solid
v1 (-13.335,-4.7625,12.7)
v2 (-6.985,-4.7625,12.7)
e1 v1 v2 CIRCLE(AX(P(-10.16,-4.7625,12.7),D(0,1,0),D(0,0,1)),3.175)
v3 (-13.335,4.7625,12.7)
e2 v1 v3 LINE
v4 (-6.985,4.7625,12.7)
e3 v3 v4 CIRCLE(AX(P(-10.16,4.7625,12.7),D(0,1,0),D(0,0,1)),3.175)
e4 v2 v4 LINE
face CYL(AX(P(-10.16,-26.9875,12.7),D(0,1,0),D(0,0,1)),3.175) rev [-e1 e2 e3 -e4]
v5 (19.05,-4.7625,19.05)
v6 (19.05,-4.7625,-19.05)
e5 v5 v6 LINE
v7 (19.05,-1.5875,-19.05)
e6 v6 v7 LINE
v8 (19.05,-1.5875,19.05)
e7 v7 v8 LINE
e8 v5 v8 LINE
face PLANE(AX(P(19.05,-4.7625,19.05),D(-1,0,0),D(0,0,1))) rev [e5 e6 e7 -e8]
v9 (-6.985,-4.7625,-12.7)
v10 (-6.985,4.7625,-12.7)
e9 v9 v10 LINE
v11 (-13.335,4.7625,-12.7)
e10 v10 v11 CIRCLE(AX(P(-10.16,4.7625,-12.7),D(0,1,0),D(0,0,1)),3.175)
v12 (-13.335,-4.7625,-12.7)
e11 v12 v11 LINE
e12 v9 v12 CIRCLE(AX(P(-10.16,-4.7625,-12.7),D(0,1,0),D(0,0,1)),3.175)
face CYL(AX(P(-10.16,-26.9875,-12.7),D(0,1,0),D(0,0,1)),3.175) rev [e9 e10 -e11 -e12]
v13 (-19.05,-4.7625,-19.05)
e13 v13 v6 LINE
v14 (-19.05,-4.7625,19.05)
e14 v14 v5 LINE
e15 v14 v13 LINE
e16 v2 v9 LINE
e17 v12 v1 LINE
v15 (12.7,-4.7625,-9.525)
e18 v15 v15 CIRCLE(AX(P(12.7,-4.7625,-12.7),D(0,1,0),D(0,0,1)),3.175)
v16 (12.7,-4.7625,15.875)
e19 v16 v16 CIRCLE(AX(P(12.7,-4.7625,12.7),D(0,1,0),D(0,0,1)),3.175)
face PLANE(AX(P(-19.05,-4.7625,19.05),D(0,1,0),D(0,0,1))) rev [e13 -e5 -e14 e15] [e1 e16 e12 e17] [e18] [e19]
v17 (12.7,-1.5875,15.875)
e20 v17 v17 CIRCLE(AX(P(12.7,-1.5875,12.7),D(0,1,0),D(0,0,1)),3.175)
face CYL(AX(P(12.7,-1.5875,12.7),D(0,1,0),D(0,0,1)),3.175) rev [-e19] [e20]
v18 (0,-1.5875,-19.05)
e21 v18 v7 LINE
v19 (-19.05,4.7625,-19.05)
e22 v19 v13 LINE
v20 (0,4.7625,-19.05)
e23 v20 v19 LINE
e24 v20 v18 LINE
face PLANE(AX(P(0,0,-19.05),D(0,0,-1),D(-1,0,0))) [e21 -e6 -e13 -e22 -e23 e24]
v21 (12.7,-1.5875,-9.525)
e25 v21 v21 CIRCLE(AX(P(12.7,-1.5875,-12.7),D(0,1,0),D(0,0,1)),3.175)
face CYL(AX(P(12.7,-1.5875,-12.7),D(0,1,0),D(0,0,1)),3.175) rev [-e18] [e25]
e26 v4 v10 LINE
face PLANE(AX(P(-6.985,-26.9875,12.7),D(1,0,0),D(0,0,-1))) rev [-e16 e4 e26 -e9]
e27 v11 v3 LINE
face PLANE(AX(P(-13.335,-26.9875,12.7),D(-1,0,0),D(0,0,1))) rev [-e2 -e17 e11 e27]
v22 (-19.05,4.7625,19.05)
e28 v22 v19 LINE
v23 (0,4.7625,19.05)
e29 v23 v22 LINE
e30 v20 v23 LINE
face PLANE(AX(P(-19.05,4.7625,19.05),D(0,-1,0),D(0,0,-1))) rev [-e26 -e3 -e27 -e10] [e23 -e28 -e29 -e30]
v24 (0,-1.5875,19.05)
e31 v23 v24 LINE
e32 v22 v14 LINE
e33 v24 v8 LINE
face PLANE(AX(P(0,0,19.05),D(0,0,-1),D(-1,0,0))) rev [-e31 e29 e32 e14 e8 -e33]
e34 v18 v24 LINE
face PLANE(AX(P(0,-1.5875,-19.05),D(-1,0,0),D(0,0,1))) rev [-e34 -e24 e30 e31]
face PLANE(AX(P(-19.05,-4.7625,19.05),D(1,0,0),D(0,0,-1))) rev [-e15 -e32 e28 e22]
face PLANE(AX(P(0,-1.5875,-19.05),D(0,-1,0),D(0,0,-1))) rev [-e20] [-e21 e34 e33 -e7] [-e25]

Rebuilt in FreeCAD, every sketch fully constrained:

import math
import FreeCAD as App
import Part
import Sketcher
from FreeCAD import Vector
Q = App.Units.Quantity

doc = App.newDocument("Part")
params = doc.addObject("Spreadsheet::Sheet", "Params")
for row, (alias, value) in enumerate([
    ("sketch1_width", "1.5 in"),
    ("sketch1_height", "0.375 in"),
    ("pad1_length", "1.5 in"),
    ("sketch2_width", "0.75 in"),
    ("sketch2_height", "0.25 in"),
    ("sketch3_diameter", "0.25 in"),
    ("hole_diameter", "0.25 in"),
    ("sketch4_height", "1 in"),
    ("sketch4_radius", "0.125 in"),
    ("pocket2_length", "1.25 in"),
], start=1):
    params.set(f"A{row}", alias)
    params.set(f"B{row}", "=" + value)
    params.setAlias(f"B{row}", alias)

body = doc.addObject("PartDesign::Body", "Body")

sketch1 = doc.addObject("Sketcher::SketchObject", "Sketch")
body.addObject(sketch1)
sketch1.AttachmentSupport = (doc.XY_Plane, [""])
sketch1.MapMode = "FlatFace"
sketch1.addGeometry([
    Part.LineSegment(Vector(-19, 5, 0), Vector(-19, -5, 0)),
    Part.LineSegment(Vector(-19, -5, 0), Vector(19, -5, 0)),
    Part.LineSegment(Vector(19, -5, 0), Vector(19, 5, 0)),
    Part.LineSegment(Vector(19, 5, 0), Vector(-19, 5, 0)),
], False)
sketch1.addConstraint([
    Sketcher.Constraint("Coincident", 0, 2, 1, 1),
    Sketcher.Constraint("Coincident", 1, 2, 2, 1),
    Sketcher.Constraint("Coincident", 2, 2, 3, 1),
    Sketcher.Constraint("Coincident", 3, 2, 0, 1),
    Sketcher.Constraint("Vertical", 0),
    Sketcher.Constraint("Horizontal", 1),
    Sketcher.Constraint("Vertical", 2),
    Sketcher.Constraint("Horizontal", 3),
    Sketcher.Constraint("Symmetric", 0, 2, 2, 2, -1, 1),
    Sketcher.Constraint("DistanceX", 1, 1, 1, 2, Q("1.5 in")),
    Sketcher.Constraint("DistanceY", 0, 2, 0, 1, Q("0.375 in")),
])
sketch1.setExpression("Constraints[9]", "Params.sketch1_width")
sketch1.setExpression("Constraints[10]", "Params.sketch1_height")
pad1 = doc.addObject("PartDesign::Pad", "Pad")
body.addObject(pad1)
pad1.Profile = sketch1
pad1.setExpression("Length", "Params.pad1_length")
pad1.Midplane = True

sketch2 = doc.addObject("Sketcher::SketchObject", "Sketch001")
body.addObject(sketch2)
sketch2.AttachmentSupport = (doc.XY_Plane, [""])
sketch2.MapMode = "FlatFace"
sketch2.AttachmentOffset = App.Placement(Vector(0, 0, 0.75 * 25.4), App.Rotation())
sketch2.addGeometry([
    Part.LineSegment(Vector(0, 5, 0), Vector(0, -2, 0)),
    Part.LineSegment(Vector(0, -2, 0), Vector(19, -2, 0)),
    Part.LineSegment(Vector(19, -2, 0), Vector(19, 5, 0)),
    Part.LineSegment(Vector(19, 5, 0), Vector(0, 5, 0)),
], False)
sketch2.addConstraint([
    Sketcher.Constraint("Coincident", 0, 2, 1, 1),
    Sketcher.Constraint("Coincident", 1, 2, 2, 1),
    Sketcher.Constraint("Coincident", 2, 2, 3, 1),
    Sketcher.Constraint("Coincident", 3, 2, 0, 1),
    Sketcher.Constraint("Vertical", 0),
    Sketcher.Constraint("Horizontal", 1),
    Sketcher.Constraint("Vertical", 2),
    Sketcher.Constraint("Horizontal", 3),
    Sketcher.Constraint("PointOnObject", 0, 2, -2),
    Sketcher.Constraint("DistanceX", 1, 1, 1, 2, Q("0.75 in")),
    Sketcher.Constraint("DistanceY", 0, 2, 0, 1, Q("0.25 in")),
    Sketcher.Constraint("DistanceY", 0, 2, -1, 1, Q("0.0625 in")),
])
sketch2.setExpression("Constraints[9]", "Params.sketch2_width")
sketch2.setExpression("Constraints[10]", "Params.sketch2_height")
pocket1 = doc.addObject("PartDesign::Pocket", "Pocket")
body.addObject(pocket1)
pocket1.Profile = sketch2
pocket1.Type = "ThroughAll"

sketch3 = doc.addObject("Sketcher::SketchObject", "Sketch002")
body.addObject(sketch3)
sketch3.AttachmentSupport = (doc.XZ_Plane, [""])
sketch3.MapMode = "FlatFace"
sketch3.AttachmentOffset = App.Placement(Vector(0, 0, 0.0625 * 25.4), App.Rotation())
sketch3.addGeometry([
    Part.Circle(Vector(12.7, -12.7, 0), Vector(0, 0, 1), 3.2),
    Part.Circle(Vector(12.7, 12.7, 0), Vector(0, 0, 1), 3.2),
], False)
sketch3.addConstraint([
    Sketcher.Constraint("Equal", 0, 1),
    Sketcher.Constraint("Symmetric", 0, 3, 1, 3, -1),
    Sketcher.Constraint("Diameter", 0, Q("0.25 in")),
    Sketcher.Constraint("DistanceY", 0, 3, 1, 3, Q("1 in")),
    Sketcher.Constraint("DistanceX", -1, 1, 0, 3, Q("0.5 in")),
])
sketch3.setExpression("Constraints[2]", "Params.sketch3_diameter")
doc.recompute()
hole = doc.addObject("PartDesign::Hole", "Hole")
body.addObject(hole)
hole.Profile = sketch3
hole.ThreadType = "None"
hole.setExpression("Diameter", "Params.hole_diameter")
hole.DepthType = "ThroughAll"
hole.Reversed = True

sketch4 = doc.addObject("Sketcher::SketchObject", "Sketch003")
body.addObject(sketch4)
sketch4.AttachmentSupport = (doc.XZ_Plane, [""])
sketch4.MapMode = "FlatFace"
sketch4.AttachmentOffset = App.Placement(Vector(0, 0, -0.1875 * 25.4), App.Rotation())
sketch4.addGeometry([
    Part.LineSegment(Vector(-13.3, -12.7, 0), Vector(-13.3, 12.7, 0)),
    Part.ArcOfCircle(Part.Circle(Vector(-10.2, 12.7, 0), Vector(0, 0, 1), 3.2), math.radians(0), math.radians(180)),
    Part.LineSegment(Vector(-7, 12.7, 0), Vector(-7, -12.7, 0)),
    Part.ArcOfCircle(Part.Circle(Vector(-10.2, -12.7, 0), Vector(0, 0, 1), 3.2), math.radians(180), math.radians(360)),
], False)
sketch4.addConstraint([
    Sketcher.Constraint("Tangent", 0, 2, 1, 2),
    Sketcher.Constraint("Tangent", 1, 1, 2, 1),
    Sketcher.Constraint("Tangent", 2, 2, 3, 2),
    Sketcher.Constraint("Tangent", 3, 1, 0, 1),
    Sketcher.Constraint("Vertical", 0),
    Sketcher.Constraint("Vertical", 2),
    Sketcher.Constraint("DistanceY", 0, 1, 0, 2, Q("1 in")),
    Sketcher.Constraint("Radius", 1, Q("0.125 in")),
    Sketcher.Constraint("DistanceX", 1, 3, -1, 1, Q("0.4 in")),
    Sketcher.Constraint("DistanceY", -1, 1, 1, 3, Q("0.5 in")),
])
sketch4.setExpression("Constraints[6]", "Params.sketch4_height")
sketch4.setExpression("Constraints[7]", "Params.sketch4_radius")
pocket2 = doc.addObject("PartDesign::Pocket", "Pocket001")
body.addObject(pocket2)
pocket2.Profile = sketch4
pocket2.setExpression("Length", "Params.pocket2_length")
pocket2.Reversed = True

doc.recompute()
